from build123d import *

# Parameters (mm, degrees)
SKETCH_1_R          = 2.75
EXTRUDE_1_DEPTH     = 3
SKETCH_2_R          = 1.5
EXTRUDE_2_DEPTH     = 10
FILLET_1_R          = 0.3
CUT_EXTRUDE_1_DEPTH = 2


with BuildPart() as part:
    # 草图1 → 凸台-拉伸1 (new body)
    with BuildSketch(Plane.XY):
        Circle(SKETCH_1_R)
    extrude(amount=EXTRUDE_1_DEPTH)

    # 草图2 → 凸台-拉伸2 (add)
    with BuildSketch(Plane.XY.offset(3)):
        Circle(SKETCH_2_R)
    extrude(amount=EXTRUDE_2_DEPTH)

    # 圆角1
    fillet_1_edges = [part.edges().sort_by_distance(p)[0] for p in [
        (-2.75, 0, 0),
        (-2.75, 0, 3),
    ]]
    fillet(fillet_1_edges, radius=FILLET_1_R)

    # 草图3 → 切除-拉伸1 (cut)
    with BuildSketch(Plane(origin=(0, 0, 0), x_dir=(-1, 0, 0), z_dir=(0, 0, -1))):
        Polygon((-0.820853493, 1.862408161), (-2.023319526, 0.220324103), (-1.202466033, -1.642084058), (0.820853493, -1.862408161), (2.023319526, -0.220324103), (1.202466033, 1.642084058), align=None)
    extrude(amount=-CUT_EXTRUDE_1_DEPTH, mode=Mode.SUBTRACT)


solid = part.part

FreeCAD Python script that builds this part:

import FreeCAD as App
import Part
import Sketcher


def edges_at(feature, points):
    """Names of the edges that pass closest to the given points."""
    edges = feature.Shape.Edges
    near = lambda p: min(range(len(edges)), key=lambda i: edges[i].distToShape(Part.Vertex(*p))[0])
    return sorted({f"Edge{near(p) + 1}" for p in points})

doc = App.newDocument("Part")
body = doc.addObject("PartDesign::Body", "Body")

# Sketch on XY plane
sketch1 = body.newObject("Sketcher::SketchObject", "Sketch")
sketch1.AttachmentSupport = (doc.getObject("XY_Plane"), [""])
sketch1.MapMode = "FlatFace"
sketch1.addGeometry(Part.Circle(App.Vector(0, 0, 0), App.Vector(0, 0, 1), 2.8), False)
sketch1.addConstraint(Sketcher.Constraint("Coincident", 0, 3, -1, 1))
sketch1.addConstraint(Sketcher.Constraint("Diameter", 0, 5.5))
pad1 = body.newObject("PartDesign::Pad", "Pad")
pad1.Profile = sketch1
pad1.Length = 3

# Sketch on XY plane
sketch2 = body.newObject("Sketcher::SketchObject", "Sketch001")
sketch2.AttachmentSupport = (doc.getObject("XY_Plane"), [""])
sketch2.MapMode = "FlatFace"
sketch2.AttachmentOffset = App.Placement(App.Vector(0, 0, 3), App.Rotation())
sketch2.addGeometry(Part.Circle(App.Vector(0, 0, 0), App.Vector(0, 0, 1), 1.5), False)
sketch2.addConstraint(Sketcher.Constraint("Coincident", 0, 3, -1, 1))
sketch2.addConstraint(Sketcher.Constraint("Diameter", 0, 3.0))
pad2 = body.newObject("PartDesign::Pad", "Pad001")
pad2.Profile = sketch2
pad2.Length = 10
doc.recompute()

fillet = body.newObject("PartDesign::Fillet", "Fillet")
fillet.Base = (pad2, edges_at(pad2, [(-2.75, 0, 0), (-2.75, 0, 3)]))
fillet.Radius = 0.3

# Sketch on XY plane
sketch3 = body.newObject("Sketcher::SketchObject", "Sketch002")
sketch3.AttachmentSupport = (doc.getObject("XY_Plane"), [""])
sketch3.MapMode = "FlatFace"
sketch3.addGeometry(Part.LineSegment(App.Vector(0.8, 1.9, 0), App.Vector(2, 0.2, 0)), False)
sketch3.addGeometry(Part.LineSegment(App.Vector(2, 0.2, 0), App.Vector(1.2, -1.6, 0)), False)
sketch3.addGeometry(Part.LineSegment(App.Vector(1.2, -1.6, 0), App.Vector(-0.8, -1.9, 0)), False)
sketch3.addGeometry(Part.LineSegment(App.Vector(-0.8, -1.9, 0), App.Vector(-2, -0.2, 0)), False)
sketch3.addGeometry(Part.LineSegment(App.Vector(-2, -0.2, 0), App.Vector(-1.2, 1.6, 0)), False)
sketch3.addGeometry(Part.LineSegment(App.Vector(-1.2, 1.6, 0), App.Vector(0.8, 1.9, 0)), False)
sketch3.addConstraint(Sketcher.Constraint("Coincident", 0, 2, 1, 1))
sketch3.addConstraint(Sketcher.Constraint("Coincident", 1, 2, 2, 1))
sketch3.addConstraint(Sketcher.Constraint("Coincident", 2, 2, 3, 1))
sketch3.addConstraint(Sketcher.Constraint("Coincident", 3, 2, 4, 1))
sketch3.addConstraint(Sketcher.Constraint("Coincident", 4, 2, 5, 1))
sketch3.addConstraint(Sketcher.Constraint("Coincident", 5, 2, 0, 1))
sketch3.addConstraint(Sketcher.Constraint("Symmetric", 0, 2, 3, 2, -1, 1))
sketch3.addConstraint(Sketcher.Constraint("Symmetric", 1, 2, 4, 2, -1, 1))
sketch3.addConstraint(Sketcher.Constraint("Symmetric", 2, 2, 5, 2, -1, 1))
sketch3.addConstraint(Sketcher.Constraint("Equal", 0, 1))
sketch3.addConstraint(Sketcher.Constraint("Equal", 1, 2))
sketch3.addConstraint(Sketcher.Constraint("Distance", 0, 2.03528))
sketch3.addConstraint(Sketcher.Constraint("DistanceX", -1, 1, 0, 2, 2.02332))
sketch3.addConstraint(Sketcher.Constraint("DistanceY", 2, 2, -1, 1, 1.862408))
sketch3.addConstraint(Sketcher.Constraint("DistanceY", 1, 2, 0, 2, 1.862408))
pocket1 = body.newObject("PartDesign::Pocket", "Pocket")
pocket1.Profile = sketch3
pocket1.Length = 2
pocket1.Reversed = True

doc.recompute()
